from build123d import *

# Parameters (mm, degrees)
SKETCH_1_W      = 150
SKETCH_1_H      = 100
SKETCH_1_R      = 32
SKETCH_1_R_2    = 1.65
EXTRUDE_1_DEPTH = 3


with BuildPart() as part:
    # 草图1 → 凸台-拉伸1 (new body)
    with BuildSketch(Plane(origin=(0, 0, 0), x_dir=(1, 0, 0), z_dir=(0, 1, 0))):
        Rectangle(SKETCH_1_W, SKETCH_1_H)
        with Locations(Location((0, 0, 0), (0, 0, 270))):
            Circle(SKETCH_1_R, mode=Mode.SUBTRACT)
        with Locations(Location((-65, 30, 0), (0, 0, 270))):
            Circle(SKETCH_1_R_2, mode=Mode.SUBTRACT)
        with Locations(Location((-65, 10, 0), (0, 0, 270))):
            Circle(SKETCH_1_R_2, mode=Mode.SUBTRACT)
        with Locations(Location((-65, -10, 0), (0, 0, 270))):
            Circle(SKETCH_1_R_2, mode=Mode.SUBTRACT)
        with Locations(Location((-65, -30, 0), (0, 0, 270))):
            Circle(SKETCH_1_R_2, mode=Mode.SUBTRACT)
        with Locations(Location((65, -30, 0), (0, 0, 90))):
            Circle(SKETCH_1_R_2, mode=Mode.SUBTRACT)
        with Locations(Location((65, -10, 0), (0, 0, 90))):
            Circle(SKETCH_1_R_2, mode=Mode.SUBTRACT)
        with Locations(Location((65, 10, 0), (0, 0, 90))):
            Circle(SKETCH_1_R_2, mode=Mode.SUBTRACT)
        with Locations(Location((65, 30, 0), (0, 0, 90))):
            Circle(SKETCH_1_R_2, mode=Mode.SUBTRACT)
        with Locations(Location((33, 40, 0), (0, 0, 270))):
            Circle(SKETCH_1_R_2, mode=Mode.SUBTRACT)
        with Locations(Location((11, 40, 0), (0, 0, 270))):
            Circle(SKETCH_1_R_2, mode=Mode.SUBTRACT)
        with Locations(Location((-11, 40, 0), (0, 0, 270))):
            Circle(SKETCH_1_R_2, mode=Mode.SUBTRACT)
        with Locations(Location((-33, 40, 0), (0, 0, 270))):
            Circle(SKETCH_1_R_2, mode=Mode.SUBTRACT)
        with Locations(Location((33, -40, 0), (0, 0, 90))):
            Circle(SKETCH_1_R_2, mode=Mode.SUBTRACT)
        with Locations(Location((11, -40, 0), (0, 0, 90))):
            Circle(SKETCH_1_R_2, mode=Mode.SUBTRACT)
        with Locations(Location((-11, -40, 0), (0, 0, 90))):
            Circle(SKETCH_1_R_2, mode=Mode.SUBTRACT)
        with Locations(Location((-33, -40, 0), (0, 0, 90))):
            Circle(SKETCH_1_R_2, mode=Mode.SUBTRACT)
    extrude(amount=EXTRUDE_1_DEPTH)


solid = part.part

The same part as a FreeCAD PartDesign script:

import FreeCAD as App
import Part
import Sketcher

V = App.Vector

doc = App.newDocument("Part")
body = doc.addObject("PartDesign::Body", "Body")

# Sketch on XZ plane
sketch1 = doc.addObject("Sketcher::SketchObject", "Sketch")
body.addObject(sketch1)
sketch1.AttachmentSupport = (doc.XZ_Plane, [""])
sketch1.MapMode = "FlatFace"
sketch1.addGeometry([
    Part.LineSegment(V(-75, -50, 0), V(-75, 50, 0)),  # 0
    Part.LineSegment(V(-75, 50, 0), V(75, 50, 0)),  # 1
    Part.LineSegment(V(75, 50, 0), V(75, -50, 0)),  # 2
    Part.LineSegment(V(75, -50, 0), V(-75, -50, 0)),  # 3
    Part.Circle(V(-65, 30, 0), V(0, 0, 1), 1.6),  # 4
    Part.Circle(V(-33, 40, 0), V(0, 0, 1), 1.6),  # 5
    Part.Circle(V(-11, 40, 0), V(0, 0, 1), 1.6),  # 6
    Part.Circle(V(-65, 10, 0), V(0, 0, 1), 1.6),  # 7
    Part.Circle(V(11, 40, 0), V(0, 0, 1), 1.6),  # 8
    Part.Circle(V(33, 40, 0), V(0, 0, 1), 1.6),  # 9
    Part.Circle(V(65, 30, 0), V(0, 0, 1), 1.6),  # 10
    Part.Circle(V(65, 10, 0), V(0, 0, 1), 1.6),  # 11
    Part.Circle(V(-65, -10, 0), V(0, 0, 1), 1.6),  # 12
    Part.Circle(V(-65, -30, 0), V(0, 0, 1), 1.6),  # 13
    Part.Circle(V(-33, -40, 0), V(0, 0, 1), 1.6),  # 14
    Part.Circle(V(-11, -40, 0), V(0, 0, 1), 1.6),  # 15
    Part.Circle(V(0, 0, 0), V(0, 0, 1), 32),  # 16
    Part.Circle(V(65, -10, 0), V(0, 0, 1), 1.6),  # 17
    Part.Circle(V(11, -40, 0), V(0, 0, 1), 1.6),  # 18
    Part.Circle(V(33, -40, 0), V(0, 0, 1), 1.6),  # 19
    Part.Circle(V(65, -30, 0), V(0, 0, 1), 1.6),  # 20
], False)
sketch1.addConstraint([
    Sketcher.Constraint("Coincident", 0, 2, 1, 1),
    Sketcher.Constraint("Coincident", 1, 2, 2, 1),
    Sketcher.Constraint("Coincident", 2, 2, 3, 1),
    Sketcher.Constraint("Coincident", 3, 2, 0, 1),
    Sketcher.Constraint("Vertical", 0),
    Sketcher.Constraint("Horizontal", 1),
    Sketcher.Constraint("Vertical", 2),
    Sketcher.Constraint("Horizontal", 3),
    Sketcher.Constraint("Coincident", 16, 3, -1, 1),
    Sketcher.Constraint("Equal", 4, 5),
    Sketcher.Constraint("Equal", 5, 6),
    Sketcher.Constraint("Equal", 6, 7),
    Sketcher.Constraint("Equal", 7, 8),
    Sketcher.Constraint("Equal", 8, 9),
    Sketcher.Constraint("Equal", 9, 10),
    Sketcher.Constraint("Equal", 10, 11),
    Sketcher.Constraint("Equal", 11, 12),
    Sketcher.Constraint("Equal", 12, 13),
    Sketcher.Constraint("Equal", 13, 14),
    Sketcher.Constraint("Equal", 14, 15),
    Sketcher.Constraint("Equal", 15, 17),
    Sketcher.Constraint("Equal", 17, 18),
    Sketcher.Constraint("Equal", 18, 19),
    Sketcher.Constraint("Equal", 19, 20),
    Sketcher.Constraint("Symmetric", 11, 3, 12, 3, -1, 1),
    Sketcher.Constraint("Symmetric", 10, 3, 13, 3, -1, 1),
    Sketcher.Constraint("Symmetric", 9, 3, 14, 3, -1, 1),
    Sketcher.Constraint("Symmetric", 8, 3, 15, 3, -1, 1),
    Sketcher.Constraint("Symmetric", 7, 3, 17, 3, -1, 1),
    Sketcher.Constraint("Symmetric", 6, 3, 18, 3, -1, 1),
    Sketcher.Constraint("Symmetric", 5, 3, 19, 3, -1, 1),
    Sketcher.Constraint("Symmetric", 4, 3, 20, 3, -1, 1),
    Sketcher.Constraint("Symmetric", 0, 2, 2, 2, -1, 1),
    Sketcher.Constraint("Symmetric", 6, 3, 8, 3, -2),
    Sketcher.Constraint("Symmetric", 5, 3, 9, 3, -2),
    Sketcher.Constraint("Symmetric", 4, 3, 10, 3, -2),
    Sketcher.Constraint("Symmetric", 7, 3, 11, 3, -2),
    Sketcher.Constraint("Horizontal", 5, 3, 6, 3),
    Sketcher.Constraint("Vertical", 4, 3, 7, 3),
    Sketcher.Constraint("Diameter", 16, 64.0),
    Sketcher.Constraint("Diameter", 4, 3.3),
    Sketcher.Constraint("DistanceX", 1, 1, 1, 2, 150.0),
    Sketcher.Constraint("DistanceY", 0, 1, 0, 2, 100.0),
    Sketcher.Constraint("DistanceX", 4, 3, -1, 1, 65.0),
    Sketcher.Constraint("DistanceY", -1, 1, 4, 3, 30.0),
    Sketcher.Constraint("DistanceX", 5, 3, -1, 1, 33.0),
    Sketcher.Constraint("DistanceY", -1, 1, 5, 3, 40.0),
    Sketcher.Constraint("DistanceX", 6, 3, -1, 1, 11.0),
    Sketcher.Constraint("DistanceY", -1, 1, 7, 3, 10.0),
])
pad1 = doc.addObject("PartDesign::Pad", "Pad")
body.addObject(pad1)
pad1.Profile = sketch1
pad1.Length = 3
pad1.Reversed = True

doc.recompute()
